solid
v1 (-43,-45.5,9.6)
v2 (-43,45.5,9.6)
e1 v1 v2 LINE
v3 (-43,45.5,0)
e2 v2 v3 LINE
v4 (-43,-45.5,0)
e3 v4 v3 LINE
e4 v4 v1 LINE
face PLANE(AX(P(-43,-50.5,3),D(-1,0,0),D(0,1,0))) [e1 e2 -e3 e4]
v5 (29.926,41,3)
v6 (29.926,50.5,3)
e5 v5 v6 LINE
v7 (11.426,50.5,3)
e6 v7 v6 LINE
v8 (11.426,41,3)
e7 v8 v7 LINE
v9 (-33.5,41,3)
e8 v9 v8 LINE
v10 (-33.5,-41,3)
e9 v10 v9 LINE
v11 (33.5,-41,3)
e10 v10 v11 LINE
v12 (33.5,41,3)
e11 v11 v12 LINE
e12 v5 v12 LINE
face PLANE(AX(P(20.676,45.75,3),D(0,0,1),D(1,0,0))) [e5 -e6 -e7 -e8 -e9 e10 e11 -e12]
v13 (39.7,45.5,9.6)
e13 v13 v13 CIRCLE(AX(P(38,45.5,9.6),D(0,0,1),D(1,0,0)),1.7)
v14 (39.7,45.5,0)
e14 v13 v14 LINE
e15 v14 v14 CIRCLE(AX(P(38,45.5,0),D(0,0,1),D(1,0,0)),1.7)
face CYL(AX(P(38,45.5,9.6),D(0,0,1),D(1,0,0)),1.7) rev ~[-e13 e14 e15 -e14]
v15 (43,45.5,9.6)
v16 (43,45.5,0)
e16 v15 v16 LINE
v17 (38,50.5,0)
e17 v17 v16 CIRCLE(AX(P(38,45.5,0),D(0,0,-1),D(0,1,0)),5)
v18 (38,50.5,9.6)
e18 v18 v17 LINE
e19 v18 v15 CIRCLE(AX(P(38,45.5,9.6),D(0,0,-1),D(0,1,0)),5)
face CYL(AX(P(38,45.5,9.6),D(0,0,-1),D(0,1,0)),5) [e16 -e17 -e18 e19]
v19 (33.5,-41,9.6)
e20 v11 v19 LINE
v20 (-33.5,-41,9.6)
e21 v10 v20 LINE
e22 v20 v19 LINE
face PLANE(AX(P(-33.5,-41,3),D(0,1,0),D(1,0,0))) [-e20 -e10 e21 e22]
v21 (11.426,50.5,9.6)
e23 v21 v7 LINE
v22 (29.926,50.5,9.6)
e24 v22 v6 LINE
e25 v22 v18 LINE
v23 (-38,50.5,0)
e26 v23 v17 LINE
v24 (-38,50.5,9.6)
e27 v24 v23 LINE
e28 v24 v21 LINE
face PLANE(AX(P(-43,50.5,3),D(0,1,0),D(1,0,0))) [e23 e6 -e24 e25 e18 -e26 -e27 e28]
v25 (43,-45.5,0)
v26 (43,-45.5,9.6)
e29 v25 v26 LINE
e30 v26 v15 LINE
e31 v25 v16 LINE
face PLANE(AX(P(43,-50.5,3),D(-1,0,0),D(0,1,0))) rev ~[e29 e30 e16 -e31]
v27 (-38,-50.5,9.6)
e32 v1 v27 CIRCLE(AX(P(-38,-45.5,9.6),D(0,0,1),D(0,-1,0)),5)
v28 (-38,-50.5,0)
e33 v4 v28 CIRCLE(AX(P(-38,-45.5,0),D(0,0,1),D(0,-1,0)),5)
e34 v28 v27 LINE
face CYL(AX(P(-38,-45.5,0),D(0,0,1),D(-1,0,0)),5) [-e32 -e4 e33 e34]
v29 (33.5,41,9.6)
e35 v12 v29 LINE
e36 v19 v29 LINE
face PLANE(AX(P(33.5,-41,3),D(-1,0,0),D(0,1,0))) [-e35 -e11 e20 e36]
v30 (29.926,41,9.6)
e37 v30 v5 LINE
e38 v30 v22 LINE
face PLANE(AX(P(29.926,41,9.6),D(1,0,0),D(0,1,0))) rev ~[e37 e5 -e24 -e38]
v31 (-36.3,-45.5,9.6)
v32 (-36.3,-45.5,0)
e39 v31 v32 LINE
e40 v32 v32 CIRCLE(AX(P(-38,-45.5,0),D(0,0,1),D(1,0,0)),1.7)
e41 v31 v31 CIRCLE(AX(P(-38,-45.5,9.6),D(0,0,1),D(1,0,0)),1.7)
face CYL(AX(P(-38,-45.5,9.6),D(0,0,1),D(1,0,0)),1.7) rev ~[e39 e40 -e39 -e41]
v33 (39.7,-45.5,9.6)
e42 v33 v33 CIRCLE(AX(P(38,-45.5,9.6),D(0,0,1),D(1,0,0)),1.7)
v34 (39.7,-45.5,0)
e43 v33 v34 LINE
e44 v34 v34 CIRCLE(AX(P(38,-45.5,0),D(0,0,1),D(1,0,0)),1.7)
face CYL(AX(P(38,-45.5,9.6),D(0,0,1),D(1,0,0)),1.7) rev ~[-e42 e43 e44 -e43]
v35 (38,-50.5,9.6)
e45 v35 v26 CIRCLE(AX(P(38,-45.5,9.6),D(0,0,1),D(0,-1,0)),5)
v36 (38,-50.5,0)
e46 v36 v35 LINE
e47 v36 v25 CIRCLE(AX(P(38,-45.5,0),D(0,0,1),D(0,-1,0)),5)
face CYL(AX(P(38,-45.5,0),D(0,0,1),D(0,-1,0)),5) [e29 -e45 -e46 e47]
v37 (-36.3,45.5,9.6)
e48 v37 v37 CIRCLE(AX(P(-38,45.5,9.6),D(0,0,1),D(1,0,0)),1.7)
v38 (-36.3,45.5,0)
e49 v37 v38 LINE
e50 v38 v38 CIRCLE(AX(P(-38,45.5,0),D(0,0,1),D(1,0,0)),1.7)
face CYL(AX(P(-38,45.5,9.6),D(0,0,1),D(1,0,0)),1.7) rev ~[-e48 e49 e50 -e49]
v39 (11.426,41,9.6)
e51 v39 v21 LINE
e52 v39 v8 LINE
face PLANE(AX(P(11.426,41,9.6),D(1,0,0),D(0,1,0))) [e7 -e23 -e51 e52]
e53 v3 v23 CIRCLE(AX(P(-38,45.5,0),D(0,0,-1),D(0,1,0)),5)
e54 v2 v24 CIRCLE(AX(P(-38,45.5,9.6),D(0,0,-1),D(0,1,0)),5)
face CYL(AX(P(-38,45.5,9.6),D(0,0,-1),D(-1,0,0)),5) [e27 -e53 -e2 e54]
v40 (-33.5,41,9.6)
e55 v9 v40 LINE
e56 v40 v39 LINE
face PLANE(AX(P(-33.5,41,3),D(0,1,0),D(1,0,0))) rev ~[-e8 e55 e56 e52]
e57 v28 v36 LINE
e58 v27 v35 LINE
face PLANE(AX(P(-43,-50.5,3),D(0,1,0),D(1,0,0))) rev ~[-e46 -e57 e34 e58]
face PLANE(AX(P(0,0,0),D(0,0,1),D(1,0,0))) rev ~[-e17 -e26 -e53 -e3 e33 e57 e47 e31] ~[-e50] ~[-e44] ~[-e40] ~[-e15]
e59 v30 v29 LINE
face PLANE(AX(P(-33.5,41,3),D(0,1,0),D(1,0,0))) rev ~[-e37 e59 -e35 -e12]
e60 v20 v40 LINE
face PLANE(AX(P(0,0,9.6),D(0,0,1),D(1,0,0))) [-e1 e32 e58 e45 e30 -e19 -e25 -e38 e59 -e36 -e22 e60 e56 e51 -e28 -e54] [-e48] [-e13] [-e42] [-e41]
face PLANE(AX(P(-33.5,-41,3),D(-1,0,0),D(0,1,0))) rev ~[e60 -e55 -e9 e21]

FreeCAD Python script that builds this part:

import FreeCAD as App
import Part
import Sketcher
Q = App.Units.Quantity


def edges_at(feature, points):
    """Names of the edges that pass closest to the given points."""
    edges = feature.Shape.Edges
    near = lambda p: min(range(len(edges)), key=lambda i: edges[i].distToShape(Part.Vertex(*p))[0])
    return sorted({f"Edge{near(p) + 1}" for p in points})

doc = App.newDocument("Part")
body = doc.addObject("PartDesign::Body", "Body")

sketch1 = body.newObject("Sketcher::SketchObject", "Sketch")
sketch1.AttachmentSupport = (doc.getObject("XY_Plane"), [""])
sketch1.MapMode = "FlatFace"
sketch1.addGeometry(Part.LineSegment(App.Vector(-43, 50, 0), App.Vector(-43, -50, 0)), False)
sketch1.addGeometry(Part.LineSegment(App.Vector(-43, -50, 0), App.Vector(43, -50, 0)), False)
sketch1.addGeometry(Part.LineSegment(App.Vector(43, -50, 0), App.Vector(43, 50, 0)), False)
sketch1.addGeometry(Part.LineSegment(App.Vector(43, 50, 0), App.Vector(-43, 50, 0)), False)
sketch1.addConstraint(Sketcher.Constraint("Coincident", 0, 2, 1, 1))
sketch1.addConstraint(Sketcher.Constraint("Coincident", 1, 2, 2, 1))
sketch1.addConstraint(Sketcher.Constraint("Coincident", 2, 2, 3, 1))
sketch1.addConstraint(Sketcher.Constraint("Coincident", 3, 2, 0, 1))
sketch1.addConstraint(Sketcher.Constraint("Vertical", 0))
sketch1.addConstraint(Sketcher.Constraint("Horizontal", 1))
sketch1.addConstraint(Sketcher.Constraint("Vertical", 2))
sketch1.addConstraint(Sketcher.Constraint("Horizontal", 3))
sketch1.addConstraint(Sketcher.Constraint("Symmetric", 0, 2, 2, 2, -1, 1))
sketch1.addConstraint(Sketcher.Constraint("DistanceX", 1, 1, 1, 2, Q("86 mm")))
sketch1.addConstraint(Sketcher.Constraint("DistanceY", 0, 2, 0, 1, Q("101 mm")))
pad1 = body.newObject("PartDesign::Pad", "Pad")
pad1.Profile = sketch1
pad1.Length = 3

sketch2 = body.newObject("Sketcher::SketchObject", "Sketch001")
sketch2.AttachmentSupport = (doc.getObject("XY_Plane"), [""])
sketch2.MapMode = "FlatFace"
sketch2.AttachmentOffset = App.Placement(App.Vector(0, 0, 3), App.Rotation())
sketch2.addGeometry(Part.LineSegment(App.Vector(-43, 50, 0), App.Vector(-43, -50, 0)), False)
sketch2.addGeometry(Part.LineSegment(App.Vector(-43, -50, 0), App.Vector(43, -50, 0)), False)
sketch2.addGeometry(Part.LineSegment(App.Vector(43, -50, 0), App.Vector(43, 50, 0)), False)
sketch2.addGeometry(Part.LineSegment(App.Vector(43, 50, 0), App.Vector(-43, 50, 0)), False)
sketch2.addGeometry(Part.LineSegment(App.Vector(34, -41, 0), App.Vector(-34, -41, 0)), False)
sketch2.addGeometry(Part.LineSegment(App.Vector(-34, -41, 0), App.Vector(-34, 41, 0)), False)
sketch2.addGeometry(Part.LineSegment(App.Vector(-34, 41, 0), App.Vector(34, 41, 0)), False)
sketch2.addGeometry(Part.LineSegment(App.Vector(34, 41, 0), App.Vector(34, -41, 0)), False)
sketch2.addConstraint(Sketcher.Constraint("Coincident", 0, 2, 1, 1))
sketch2.addConstraint(Sketcher.Constraint("Coincident", 1, 2, 2, 1))
sketch2.addConstraint(Sketcher.Constraint("Coincident", 2, 2, 3, 1))
sketch2.addConstraint(Sketcher.Constraint("Coincident", 3, 2, 0, 1))
sketch2.addConstraint(Sketcher.Constraint("Coincident", 4, 2, 5, 1))
sketch2.addConstraint(Sketcher.Constraint("Coincident", 5, 2, 6, 1))
sketch2.addConstraint(Sketcher.Constraint("Coincident", 6, 2, 7, 1))
sketch2.addConstraint(Sketcher.Constraint("Coincident", 7, 2, 4, 1))
sketch2.addConstraint(Sketcher.Constraint("Vertical", 0))
sketch2.addConstraint(Sketcher.Constraint("Horizontal", 1))
sketch2.addConstraint(Sketcher.Constraint("Vertical", 2))
sketch2.addConstraint(Sketcher.Constraint("Horizontal", 3))
sketch2.addConstraint(Sketcher.Constraint("Horizontal", 4))
sketch2.addConstraint(Sketcher.Constraint("Vertical", 5))
sketch2.addConstraint(Sketcher.Constraint("Horizontal", 6))
sketch2.addConstraint(Sketcher.Constraint("Vertical", 7))
sketch2.addConstraint(Sketcher.Constraint("Symmetric", 0, 2, 2, 2, -1, 1))
sketch2.addConstraint(Sketcher.Constraint("Symmetric", 4, 2, 6, 2, -1, 1))
sketch2.addConstraint(Sketcher.Constraint("DistanceX", 1, 1, 1, 2, Q("86 mm")))
sketch2.addConstraint(Sketcher.Constraint("DistanceX", 4, 2, 4, 1, Q("67 mm")))
sketch2.addConstraint(Sketcher.Constraint("DistanceY", 0, 2, 0, 1, Q("101 mm")))
sketch2.addConstraint(Sketcher.Constraint("DistanceY", 5, 1, 5, 2, Q("82 mm")))
pad2 = body.newObject("PartDesign::Pad", "Pad001")
pad2.Profile = sketch2
pad2.Length = 6.6

sketch3 = body.newObject("Sketcher::SketchObject", "Sketch002")
sketch3.AttachmentSupport = (doc.getObject("XY_Plane"), [""])
sketch3.MapMode = "FlatFace"
sketch3.AttachmentOffset = App.Placement(App.Vector(0, 0, 9.6), App.Rotation())
sketch3.addGeometry(Part.Circle(App.Vector(-38, -45.5, 0), App.Vector(0, 0, 1), 1.7), False)
sketch3.addGeometry(Part.Circle(App.Vector(-38, 45.5, 0), App.Vector(0, 0, 1), 1.7), False)
sketch3.addGeometry(Part.Circle(App.Vector(38, 45.5, 0), App.Vector(0, 0, 1), 1.7), False)
sketch3.addGeometry(Part.Circle(App.Vector(38, -45.5, 0), App.Vector(0, 0, 1), 1.7), False)
sketch3.addConstraint(Sketcher.Constraint("Equal", 0, 1))
sketch3.addConstraint(Sketcher.Constraint("Equal", 1, 2))
sketch3.addConstraint(Sketcher.Constraint("Equal", 2, 3))
sketch3.addConstraint(Sketcher.Constraint("Symmetric", 0, 3, 2, 3, -1, 1))
sketch3.addConstraint(Sketcher.Constraint("Symmetric", 1, 3, 3, 3, -1, 1))
sketch3.addConstraint(Sketcher.Constraint("Symmetric", 1, 3, 2, 3, -2))
sketch3.addConstraint(Sketcher.Constraint("Diameter", 0, Q("3.4 mm")))
sketch3.addConstraint(Sketcher.Constraint("DistanceX", 0, 3, -1, 1, Q("38 mm")))
sketch3.addConstraint(Sketcher.Constraint("DistanceY", 0, 3, 1, 3, Q("91 mm")))
pocket1 = body.newObject("PartDesign::Pocket", "Pocket")
pocket1.Profile = sketch3
pocket1.Length = 12

sketch4 = body.newObject("Sketcher::SketchObject", "Sketch003")
sketch4.AttachmentSupport = (doc.getObject("XY_Plane"), [""])
sketch4.MapMode = "FlatFace"
sketch4.AttachmentOffset = App.Placement(App.Vector(0, 0, 9.6), App.Rotation())
sketch4.addGeometry(Part.LineSegment(App.Vector(11, 50, 0), App.Vector(11, 41, 0)), False)
sketch4.addGeometry(Part.LineSegment(App.Vector(11, 41, 0), App.Vector(30, 41, 0)), False)
sketch4.addGeometry(Part.LineSegment(App.Vector(30, 41, 0), App.Vector(30, 50, 0)), False)
sketch4.addGeometry(Part.LineSegment(App.Vector(30, 50, 0), App.Vector(11, 50, 0)), False)
sketch4.addConstraint(Sketcher.Constraint("Coincident", 0, 2, 1, 1))
sketch4.addConstraint(Sketcher.Constraint("Coincident", 1, 2, 2, 1))
sketch4.addConstraint(Sketcher.Constraint("Coincident", 2, 2, 3, 1))
sketch4.addConstraint(Sketcher.Constraint("Coincident", 3, 2, 0, 1))
sketch4.addConstraint(Sketcher.Constraint("Vertical", 0))
sketch4.addConstraint(Sketcher.Constraint("Horizontal", 1))
sketch4.addConstraint(Sketcher.Constraint("Vertical", 2))
sketch4.addConstraint(Sketcher.Constraint("Horizontal", 3))
sketch4.addConstraint(Sketcher.Constraint("DistanceX", 1, 1, 1, 2, Q("18.5 mm")))
sketch4.addConstraint(Sketcher.Constraint("DistanceY", 0, 2, 0, 1, Q("9.5 mm")))
sketch4.addConstraint(Sketcher.Constraint("DistanceY", -1, 1, 0, 2, Q("41 mm")))
sketch4.addConstraint(Sketcher.Constraint("DistanceX", -1, 1, 0, 2, Q("11.426 mm")))
pocket2 = body.newObject("PartDesign::Pocket", "Pocket001")
pocket2.Profile = sketch4
pocket2.Length = 6.6
doc.recompute()

fillet = body.newObject("PartDesign::Fillet", "Fillet")
fillet.Base = (pocket2, edges_at(pocket2, [
    (43, -50.5, 4.8),
    (-43, -50.5, 4.8),
    (-43, 50.5, 4.8),
    (43, 50.5, 4.8),
]))
fillet.Radius = 5

doc.recompute()
